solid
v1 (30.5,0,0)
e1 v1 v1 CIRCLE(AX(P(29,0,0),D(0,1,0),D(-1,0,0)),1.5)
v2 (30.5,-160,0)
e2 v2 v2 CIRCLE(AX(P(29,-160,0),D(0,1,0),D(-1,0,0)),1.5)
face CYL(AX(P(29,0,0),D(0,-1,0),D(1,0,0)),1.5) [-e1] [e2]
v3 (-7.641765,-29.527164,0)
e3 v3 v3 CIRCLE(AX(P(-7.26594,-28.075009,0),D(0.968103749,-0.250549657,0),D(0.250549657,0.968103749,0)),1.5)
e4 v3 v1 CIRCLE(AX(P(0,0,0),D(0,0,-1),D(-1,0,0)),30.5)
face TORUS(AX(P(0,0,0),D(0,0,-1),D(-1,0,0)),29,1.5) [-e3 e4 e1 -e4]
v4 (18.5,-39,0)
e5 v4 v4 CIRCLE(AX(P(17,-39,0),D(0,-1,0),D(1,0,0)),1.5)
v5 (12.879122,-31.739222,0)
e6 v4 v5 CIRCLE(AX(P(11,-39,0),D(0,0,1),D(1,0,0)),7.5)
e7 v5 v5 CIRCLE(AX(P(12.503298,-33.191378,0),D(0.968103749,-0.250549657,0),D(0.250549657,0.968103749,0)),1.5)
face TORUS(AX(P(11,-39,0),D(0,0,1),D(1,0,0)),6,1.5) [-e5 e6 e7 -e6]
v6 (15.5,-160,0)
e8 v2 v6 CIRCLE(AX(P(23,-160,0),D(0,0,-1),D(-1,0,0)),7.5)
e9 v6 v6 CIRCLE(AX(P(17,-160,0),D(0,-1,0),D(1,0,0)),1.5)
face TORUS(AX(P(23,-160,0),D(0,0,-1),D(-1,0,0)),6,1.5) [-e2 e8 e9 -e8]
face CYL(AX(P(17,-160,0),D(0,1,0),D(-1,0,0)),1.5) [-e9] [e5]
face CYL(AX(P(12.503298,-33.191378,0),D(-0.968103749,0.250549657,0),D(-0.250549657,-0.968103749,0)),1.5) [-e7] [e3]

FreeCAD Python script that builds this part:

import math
import FreeCAD as App
import Part
import Sketcher

doc = App.newDocument("Part")
params = doc.addObject("Spreadsheet::Sheet", "Params")
for row, (alias, value) in enumerate([
    ("sketch1_diameter", "3 mm"),
    ("sketch2_radius", "6 mm"),
    ("sketch2_radius2", "29 mm"),
    ("sketch2_height", "160 mm"),
    ("sketch2_height2", "121 mm"),
], start=1):
    params.set(f"A{row}", alias)
    params.set(f"B{row}", "=" + value)
    params.setAlias(f"B{row}", alias)

body = doc.addObject("PartDesign::Body", "Body")

# Sketch on XZ plane
sketch1 = doc.addObject("Sketcher::SketchObject", "Sketch")
body.addObject(sketch1)
sketch1.AttachmentSupport = (doc.XZ_Plane, [""])
sketch1.MapMode = "FlatFace"
sketch1.addGeometry(Part.Circle(App.Vector(29, 0, 0), App.Vector(0, 0, 1), 1.5), False)
sketch1.addConstraint(Sketcher.Constraint("PointOnObject", 0, 3, -1))
sketch1.addConstraint(Sketcher.Constraint("Diameter", 0, 3.0))
sketch1.addConstraint(Sketcher.Constraint("DistanceX", -1, 1, 0, 3, 29.0))
sketch1.setExpression("Constraints[1]", "Params.sketch1_diameter")

# Sketch on XY plane
sketch2 = doc.addObject("Sketcher::SketchObject", "Sketch001")
body.addObject(sketch2)
sketch2.AttachmentSupport = (doc.XY_Plane, [""])
sketch2.MapMode = "FlatFace"
sketch2.addGeometry(Part.LineSegment(App.Vector(29, 0, 0), App.Vector(29, -160, 0)), False)
sketch2.addGeometry(Part.ArcOfCircle(Part.Circle(App.Vector(23, -160, 0), App.Vector(0, 0, 1), 6), math.radians(180), math.radians(360)), False)
sketch2.addGeometry(Part.LineSegment(App.Vector(17, -160, 0), App.Vector(17, -39, 0)), False)
sketch2.addGeometry(Part.ArcOfCircle(Part.Circle(App.Vector(11, -39, 0), App.Vector(0, 0, 1), 6), math.radians(0), math.radians(75)), False)
sketch2.addGeometry(Part.LineSegment(App.Vector(13, -33, 0), App.Vector(-7, -28, 0)), False)
sketch2.addGeometry(Part.ArcOfCircle(Part.Circle(App.Vector(0, 0, 0), App.Vector(0, 0, 1), 29), math.radians(0), math.radians(255)), False)
sketch2.addConstraint(Sketcher.Constraint("Tangent", 0, 2, 1, 2))
sketch2.addConstraint(Sketcher.Constraint("Tangent", 1, 1, 2, 1))
sketch2.addConstraint(Sketcher.Constraint("Tangent", 2, 2, 3, 1))
sketch2.addConstraint(Sketcher.Constraint("Tangent", 3, 2, 4, 1))
sketch2.addConstraint(Sketcher.Constraint("Tangent", 4, 2, 5, 2))
sketch2.addConstraint(Sketcher.Constraint("Tangent", 5, 1, 0, 1))
sketch2.addConstraint(Sketcher.Constraint("Vertical", 0))
sketch2.addConstraint(Sketcher.Constraint("Vertical", 2))
sketch2.addConstraint(Sketcher.Constraint("Coincident", 5, 3, -1, 1))
sketch2.addConstraint(Sketcher.Constraint("Equal", 1, 3))
sketch2.addConstraint(Sketcher.Constraint("Radius", 1, 6.0))
sketch2.addConstraint(Sketcher.Constraint("Radius", 5, 29.0))
sketch2.addConstraint(Sketcher.Constraint("DistanceY", 0, 2, 0, 1, 160.0))
sketch2.addConstraint(Sketcher.Constraint("DistanceY", 2, 1, 2, 2, 121.0))
sketch2.setExpression("Constraints[10]", "Params.sketch2_radius")
sketch2.setExpression("Constraints[11]", "Params.sketch2_radius2")
sketch2.setExpression("Constraints[12]", "Params.sketch2_height")
sketch2.setExpression("Constraints[13]", "Params.sketch2_height2")
doc.recompute()

additivepipe = doc.addObject("PartDesign::AdditivePipe", "AdditivePipe")
body.addObject(additivepipe)
additivepipe.Profile = sketch1
additivepipe.Spine = (sketch2, ["Edge1", "Edge2", "Edge3", "Edge4", "Edge5", "Edge6"])

doc.recompute()
